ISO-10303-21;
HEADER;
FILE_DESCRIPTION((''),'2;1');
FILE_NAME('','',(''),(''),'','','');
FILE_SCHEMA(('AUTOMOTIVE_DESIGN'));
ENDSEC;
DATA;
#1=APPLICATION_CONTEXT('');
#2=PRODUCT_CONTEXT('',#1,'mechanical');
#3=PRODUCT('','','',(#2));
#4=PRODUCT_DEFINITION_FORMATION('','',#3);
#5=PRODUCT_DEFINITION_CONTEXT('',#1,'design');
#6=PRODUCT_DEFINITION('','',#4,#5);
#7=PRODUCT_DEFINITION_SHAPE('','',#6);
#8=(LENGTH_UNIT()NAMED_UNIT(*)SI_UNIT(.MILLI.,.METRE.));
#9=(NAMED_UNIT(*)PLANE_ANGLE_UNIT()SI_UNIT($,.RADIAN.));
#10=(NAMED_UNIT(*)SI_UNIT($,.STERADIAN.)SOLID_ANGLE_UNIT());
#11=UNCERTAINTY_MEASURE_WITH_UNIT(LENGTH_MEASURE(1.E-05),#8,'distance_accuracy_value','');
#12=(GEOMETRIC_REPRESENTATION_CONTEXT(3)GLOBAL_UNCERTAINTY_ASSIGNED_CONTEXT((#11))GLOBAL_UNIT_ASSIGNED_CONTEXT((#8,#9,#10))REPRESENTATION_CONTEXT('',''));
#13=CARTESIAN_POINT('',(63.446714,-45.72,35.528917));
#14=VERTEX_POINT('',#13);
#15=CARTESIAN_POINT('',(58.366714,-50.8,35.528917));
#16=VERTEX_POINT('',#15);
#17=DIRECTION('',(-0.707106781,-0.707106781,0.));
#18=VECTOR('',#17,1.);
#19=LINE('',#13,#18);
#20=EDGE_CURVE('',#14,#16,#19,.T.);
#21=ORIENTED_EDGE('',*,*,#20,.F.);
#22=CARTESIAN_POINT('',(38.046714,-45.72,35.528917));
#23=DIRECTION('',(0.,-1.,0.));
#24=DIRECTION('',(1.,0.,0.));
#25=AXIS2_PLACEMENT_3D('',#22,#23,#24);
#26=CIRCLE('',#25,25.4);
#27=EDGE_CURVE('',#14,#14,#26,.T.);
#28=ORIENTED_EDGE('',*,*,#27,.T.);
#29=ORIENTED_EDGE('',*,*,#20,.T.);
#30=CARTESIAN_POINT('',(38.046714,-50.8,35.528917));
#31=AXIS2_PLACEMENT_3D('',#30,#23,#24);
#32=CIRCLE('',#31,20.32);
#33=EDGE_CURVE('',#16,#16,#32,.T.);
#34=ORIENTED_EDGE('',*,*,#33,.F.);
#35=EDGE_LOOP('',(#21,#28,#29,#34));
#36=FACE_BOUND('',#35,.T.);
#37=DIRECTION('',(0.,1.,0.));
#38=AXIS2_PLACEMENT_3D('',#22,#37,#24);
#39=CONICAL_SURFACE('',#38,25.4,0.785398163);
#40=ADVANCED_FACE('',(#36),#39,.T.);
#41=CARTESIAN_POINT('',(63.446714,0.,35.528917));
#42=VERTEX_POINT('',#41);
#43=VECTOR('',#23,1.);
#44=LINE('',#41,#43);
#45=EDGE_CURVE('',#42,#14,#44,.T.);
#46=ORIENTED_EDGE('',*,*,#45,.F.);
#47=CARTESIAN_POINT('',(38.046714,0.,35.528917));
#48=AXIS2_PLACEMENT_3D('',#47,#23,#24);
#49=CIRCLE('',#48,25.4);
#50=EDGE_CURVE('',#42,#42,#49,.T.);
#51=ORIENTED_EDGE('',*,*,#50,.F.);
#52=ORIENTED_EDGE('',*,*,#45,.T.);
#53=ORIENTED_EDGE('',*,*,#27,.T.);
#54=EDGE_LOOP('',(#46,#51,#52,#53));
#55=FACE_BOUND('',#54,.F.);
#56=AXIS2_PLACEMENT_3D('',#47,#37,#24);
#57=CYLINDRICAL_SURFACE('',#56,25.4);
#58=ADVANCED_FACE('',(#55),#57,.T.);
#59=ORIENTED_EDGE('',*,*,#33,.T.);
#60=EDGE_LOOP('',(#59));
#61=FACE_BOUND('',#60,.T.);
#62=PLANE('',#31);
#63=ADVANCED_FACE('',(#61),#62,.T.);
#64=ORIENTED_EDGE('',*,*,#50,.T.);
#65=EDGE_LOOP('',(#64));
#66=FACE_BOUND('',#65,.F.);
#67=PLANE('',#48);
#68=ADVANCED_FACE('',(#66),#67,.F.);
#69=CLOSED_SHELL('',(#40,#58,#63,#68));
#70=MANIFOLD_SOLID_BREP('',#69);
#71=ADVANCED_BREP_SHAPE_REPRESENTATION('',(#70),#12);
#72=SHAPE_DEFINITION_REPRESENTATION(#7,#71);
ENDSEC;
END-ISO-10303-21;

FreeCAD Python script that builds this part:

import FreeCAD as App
import Part
import Sketcher
Q = App.Units.Quantity


def edges_at(feature, points):
    """Names of the edges that pass closest to the given points."""
    edges = feature.Shape.Edges
    near = lambda p: min(range(len(edges)), key=lambda i: edges[i].distToShape(Part.Vertex(*p))[0])
    return sorted({f"Edge{near(p) + 1}" for p in points})

doc = App.newDocument("Part")
body = doc.addObject("PartDesign::Body", "Body")

# Sketch on XZ plane
sketch1 = body.newObject("Sketcher::SketchObject", "Sketch")
sketch1.AttachmentSupport = (doc.getObject("XZ_Plane"), [""])
sketch1.MapMode = "FlatFace"
sketch1.addGeometry(Part.Circle(App.Vector(38.046714, 35.528917, 0), App.Vector(0, 0, 1), 25.4), False)
sketch1.addConstraint([
    Sketcher.Constraint("Diameter", 0, Q("2 in")),
    Sketcher.Constraint("DistanceX", -1, 1, 0, 3, 38.046714),
    Sketcher.Constraint("DistanceY", -1, 1, 0, 3, 35.528917),
])
pad1 = body.newObject("PartDesign::Pad", "Pad")
pad1.Profile = sketch1
pad1.Length = Q("2 in")
doc.recompute()

chamfer = body.newObject("PartDesign::Chamfer", "Chamfer")
chamfer.Base = (pad1, edges_at(pad1, [(12.647, -50.8, 35.529)]))
chamfer.Size = Q("0.2 in")

doc.recompute()
